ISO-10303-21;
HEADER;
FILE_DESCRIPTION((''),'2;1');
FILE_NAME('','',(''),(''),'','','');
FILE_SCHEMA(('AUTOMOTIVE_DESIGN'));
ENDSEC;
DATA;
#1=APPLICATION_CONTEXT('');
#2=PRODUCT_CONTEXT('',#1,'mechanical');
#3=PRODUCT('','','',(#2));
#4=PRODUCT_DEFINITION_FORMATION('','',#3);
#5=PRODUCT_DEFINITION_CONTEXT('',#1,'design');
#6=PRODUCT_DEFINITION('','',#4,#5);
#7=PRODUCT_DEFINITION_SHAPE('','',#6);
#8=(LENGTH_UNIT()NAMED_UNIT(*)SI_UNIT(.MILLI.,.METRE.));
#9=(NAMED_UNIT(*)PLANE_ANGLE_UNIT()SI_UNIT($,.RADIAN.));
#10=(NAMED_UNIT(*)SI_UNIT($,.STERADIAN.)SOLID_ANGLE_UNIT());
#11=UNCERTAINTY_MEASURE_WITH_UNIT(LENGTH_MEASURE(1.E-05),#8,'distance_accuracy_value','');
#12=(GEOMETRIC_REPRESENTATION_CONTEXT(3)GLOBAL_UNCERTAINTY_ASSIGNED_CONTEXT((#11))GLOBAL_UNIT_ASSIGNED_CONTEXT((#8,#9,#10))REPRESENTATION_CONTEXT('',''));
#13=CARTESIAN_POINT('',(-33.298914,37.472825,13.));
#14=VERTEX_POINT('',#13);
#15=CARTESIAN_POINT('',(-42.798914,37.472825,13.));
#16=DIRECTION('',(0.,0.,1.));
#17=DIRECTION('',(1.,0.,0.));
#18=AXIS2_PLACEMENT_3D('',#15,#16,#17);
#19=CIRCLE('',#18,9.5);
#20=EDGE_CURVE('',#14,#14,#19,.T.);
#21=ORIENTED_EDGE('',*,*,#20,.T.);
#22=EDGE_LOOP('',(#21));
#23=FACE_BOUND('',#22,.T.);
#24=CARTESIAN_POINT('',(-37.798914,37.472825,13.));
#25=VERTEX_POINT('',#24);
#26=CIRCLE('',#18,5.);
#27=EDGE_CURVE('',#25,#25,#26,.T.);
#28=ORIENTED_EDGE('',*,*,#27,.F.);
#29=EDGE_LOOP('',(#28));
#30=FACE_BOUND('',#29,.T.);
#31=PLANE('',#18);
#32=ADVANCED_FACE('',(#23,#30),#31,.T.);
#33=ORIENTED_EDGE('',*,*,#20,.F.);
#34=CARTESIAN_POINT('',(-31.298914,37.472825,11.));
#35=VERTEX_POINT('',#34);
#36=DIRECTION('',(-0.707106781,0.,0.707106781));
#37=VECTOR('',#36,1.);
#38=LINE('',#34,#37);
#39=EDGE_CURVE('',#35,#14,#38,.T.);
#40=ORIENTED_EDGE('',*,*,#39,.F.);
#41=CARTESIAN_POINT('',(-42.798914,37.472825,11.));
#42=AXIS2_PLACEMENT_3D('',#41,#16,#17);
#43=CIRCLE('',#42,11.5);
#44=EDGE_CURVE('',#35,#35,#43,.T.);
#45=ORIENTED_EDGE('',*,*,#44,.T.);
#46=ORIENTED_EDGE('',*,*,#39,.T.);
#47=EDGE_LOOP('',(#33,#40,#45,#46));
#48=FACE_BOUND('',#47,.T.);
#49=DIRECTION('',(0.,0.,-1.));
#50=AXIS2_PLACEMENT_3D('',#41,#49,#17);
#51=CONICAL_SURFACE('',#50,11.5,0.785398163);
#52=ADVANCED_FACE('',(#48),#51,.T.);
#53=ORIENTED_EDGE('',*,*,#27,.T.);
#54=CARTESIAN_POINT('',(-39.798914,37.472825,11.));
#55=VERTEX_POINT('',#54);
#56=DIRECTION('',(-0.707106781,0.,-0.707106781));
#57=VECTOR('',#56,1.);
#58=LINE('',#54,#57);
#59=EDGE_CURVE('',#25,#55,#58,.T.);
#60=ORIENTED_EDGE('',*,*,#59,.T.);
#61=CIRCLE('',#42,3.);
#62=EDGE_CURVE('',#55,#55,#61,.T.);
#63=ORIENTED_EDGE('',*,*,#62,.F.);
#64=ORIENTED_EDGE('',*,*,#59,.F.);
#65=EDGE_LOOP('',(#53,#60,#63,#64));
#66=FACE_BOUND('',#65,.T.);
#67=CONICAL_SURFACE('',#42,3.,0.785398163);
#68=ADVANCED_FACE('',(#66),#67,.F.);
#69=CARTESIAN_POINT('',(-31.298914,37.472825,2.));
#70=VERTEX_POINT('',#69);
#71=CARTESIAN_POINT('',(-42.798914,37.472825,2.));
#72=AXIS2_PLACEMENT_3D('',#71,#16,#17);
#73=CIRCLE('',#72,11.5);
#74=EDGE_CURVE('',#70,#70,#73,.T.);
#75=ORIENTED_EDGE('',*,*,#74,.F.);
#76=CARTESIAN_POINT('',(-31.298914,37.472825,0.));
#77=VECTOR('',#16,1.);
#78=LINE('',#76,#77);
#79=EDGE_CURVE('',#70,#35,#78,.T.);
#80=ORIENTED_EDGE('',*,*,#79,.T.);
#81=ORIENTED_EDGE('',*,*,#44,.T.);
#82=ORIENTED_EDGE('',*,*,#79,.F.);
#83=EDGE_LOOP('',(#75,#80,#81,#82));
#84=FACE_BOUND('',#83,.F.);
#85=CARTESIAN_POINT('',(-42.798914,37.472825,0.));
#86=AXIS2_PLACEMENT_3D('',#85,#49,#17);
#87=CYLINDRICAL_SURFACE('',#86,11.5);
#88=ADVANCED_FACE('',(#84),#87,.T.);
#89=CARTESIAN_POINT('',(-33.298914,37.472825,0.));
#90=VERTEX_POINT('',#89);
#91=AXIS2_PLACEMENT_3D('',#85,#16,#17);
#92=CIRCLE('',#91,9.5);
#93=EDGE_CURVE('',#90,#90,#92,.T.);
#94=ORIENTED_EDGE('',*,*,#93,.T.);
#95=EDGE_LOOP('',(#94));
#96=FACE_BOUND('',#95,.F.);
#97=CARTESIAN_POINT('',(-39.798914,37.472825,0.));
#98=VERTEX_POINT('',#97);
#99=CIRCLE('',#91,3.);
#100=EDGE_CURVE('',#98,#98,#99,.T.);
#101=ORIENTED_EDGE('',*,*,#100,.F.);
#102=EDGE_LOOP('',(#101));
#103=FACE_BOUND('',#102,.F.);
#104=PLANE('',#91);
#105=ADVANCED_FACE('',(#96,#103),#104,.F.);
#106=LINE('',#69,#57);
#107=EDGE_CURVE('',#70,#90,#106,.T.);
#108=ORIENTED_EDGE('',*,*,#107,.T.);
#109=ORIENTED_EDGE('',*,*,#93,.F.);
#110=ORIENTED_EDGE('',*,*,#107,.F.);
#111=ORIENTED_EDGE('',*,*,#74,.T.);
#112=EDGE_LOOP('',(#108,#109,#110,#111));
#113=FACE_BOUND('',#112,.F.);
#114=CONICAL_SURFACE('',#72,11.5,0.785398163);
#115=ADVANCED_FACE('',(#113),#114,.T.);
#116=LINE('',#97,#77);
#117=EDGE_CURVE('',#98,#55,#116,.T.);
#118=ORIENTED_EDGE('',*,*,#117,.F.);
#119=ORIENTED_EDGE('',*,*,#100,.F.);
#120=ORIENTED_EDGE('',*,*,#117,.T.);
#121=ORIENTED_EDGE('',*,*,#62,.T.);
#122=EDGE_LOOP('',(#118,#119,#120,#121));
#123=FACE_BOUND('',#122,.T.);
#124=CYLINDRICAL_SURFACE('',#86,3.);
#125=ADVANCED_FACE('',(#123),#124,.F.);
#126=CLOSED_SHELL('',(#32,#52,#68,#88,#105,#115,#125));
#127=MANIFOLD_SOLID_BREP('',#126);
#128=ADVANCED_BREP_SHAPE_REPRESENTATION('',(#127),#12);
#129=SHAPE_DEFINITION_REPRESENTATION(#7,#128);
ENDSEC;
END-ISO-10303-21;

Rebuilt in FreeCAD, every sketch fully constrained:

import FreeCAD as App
import Part
import Sketcher

V = App.Vector


def edges_at(feature, points):
    """Names of the edges that pass closest to the given points."""
    edges = feature.Shape.Edges
    near = lambda p: min(range(len(edges)), key=lambda i: edges[i].distToShape(Part.Vertex(*p))[0])
    return sorted({f"Edge{near(p) + 1}" for p in points})

doc = App.newDocument("Part")
body = doc.addObject("PartDesign::Body", "Body")

# Sketch on XY plane
sketch1 = body.newObject("Sketcher::SketchObject", "Sketch")
sketch1.AttachmentSupport = (doc.getObject("XY_Plane"), [""])
sketch1.MapMode = "FlatFace"
sketch1.addGeometry([
    Part.Circle(V(-42.798914, 37.472825, 0), V(0, 0, 1), 11.5),
    Part.Circle(V(-42.798914, 37.472825, 0), V(0, 0, 1), 3),
], False)
sketch1.addConstraint([
    Sketcher.Constraint("Coincident", 1, 3, 0, 3),
    Sketcher.Constraint("Diameter", 0, 23.0),
    Sketcher.Constraint("Diameter", 1, 6.0),
    Sketcher.Constraint("DistanceX", 0, 3, -1, 1, 42.798914),
    Sketcher.Constraint("DistanceY", -1, 1, 0, 3, 37.472825),
])
pad1 = body.newObject("PartDesign::Pad", "Pad")
pad1.Profile = sketch1
pad1.Length = 13
doc.recompute()

chamfer = body.newObject("PartDesign::Chamfer", "Chamfer")
chamfer.Base = (pad1, edges_at(pad1, [(-54.299, 37.473, 13)]))
chamfer.Size = 2
doc.recompute()

chamfer2 = body.newObject("PartDesign::Chamfer", "Chamfer001")
chamfer2.Base = (chamfer, edges_at(chamfer, [(-54.299, 37.473, 0)]))
chamfer2.Size = 2
doc.recompute()

chamfer3 = body.newObject("PartDesign::Chamfer", "Chamfer002")
chamfer3.Base = (chamfer2, edges_at(chamfer2, [(-45.799, 37.473, 13)]))
chamfer3.Size = 2

doc.recompute()
